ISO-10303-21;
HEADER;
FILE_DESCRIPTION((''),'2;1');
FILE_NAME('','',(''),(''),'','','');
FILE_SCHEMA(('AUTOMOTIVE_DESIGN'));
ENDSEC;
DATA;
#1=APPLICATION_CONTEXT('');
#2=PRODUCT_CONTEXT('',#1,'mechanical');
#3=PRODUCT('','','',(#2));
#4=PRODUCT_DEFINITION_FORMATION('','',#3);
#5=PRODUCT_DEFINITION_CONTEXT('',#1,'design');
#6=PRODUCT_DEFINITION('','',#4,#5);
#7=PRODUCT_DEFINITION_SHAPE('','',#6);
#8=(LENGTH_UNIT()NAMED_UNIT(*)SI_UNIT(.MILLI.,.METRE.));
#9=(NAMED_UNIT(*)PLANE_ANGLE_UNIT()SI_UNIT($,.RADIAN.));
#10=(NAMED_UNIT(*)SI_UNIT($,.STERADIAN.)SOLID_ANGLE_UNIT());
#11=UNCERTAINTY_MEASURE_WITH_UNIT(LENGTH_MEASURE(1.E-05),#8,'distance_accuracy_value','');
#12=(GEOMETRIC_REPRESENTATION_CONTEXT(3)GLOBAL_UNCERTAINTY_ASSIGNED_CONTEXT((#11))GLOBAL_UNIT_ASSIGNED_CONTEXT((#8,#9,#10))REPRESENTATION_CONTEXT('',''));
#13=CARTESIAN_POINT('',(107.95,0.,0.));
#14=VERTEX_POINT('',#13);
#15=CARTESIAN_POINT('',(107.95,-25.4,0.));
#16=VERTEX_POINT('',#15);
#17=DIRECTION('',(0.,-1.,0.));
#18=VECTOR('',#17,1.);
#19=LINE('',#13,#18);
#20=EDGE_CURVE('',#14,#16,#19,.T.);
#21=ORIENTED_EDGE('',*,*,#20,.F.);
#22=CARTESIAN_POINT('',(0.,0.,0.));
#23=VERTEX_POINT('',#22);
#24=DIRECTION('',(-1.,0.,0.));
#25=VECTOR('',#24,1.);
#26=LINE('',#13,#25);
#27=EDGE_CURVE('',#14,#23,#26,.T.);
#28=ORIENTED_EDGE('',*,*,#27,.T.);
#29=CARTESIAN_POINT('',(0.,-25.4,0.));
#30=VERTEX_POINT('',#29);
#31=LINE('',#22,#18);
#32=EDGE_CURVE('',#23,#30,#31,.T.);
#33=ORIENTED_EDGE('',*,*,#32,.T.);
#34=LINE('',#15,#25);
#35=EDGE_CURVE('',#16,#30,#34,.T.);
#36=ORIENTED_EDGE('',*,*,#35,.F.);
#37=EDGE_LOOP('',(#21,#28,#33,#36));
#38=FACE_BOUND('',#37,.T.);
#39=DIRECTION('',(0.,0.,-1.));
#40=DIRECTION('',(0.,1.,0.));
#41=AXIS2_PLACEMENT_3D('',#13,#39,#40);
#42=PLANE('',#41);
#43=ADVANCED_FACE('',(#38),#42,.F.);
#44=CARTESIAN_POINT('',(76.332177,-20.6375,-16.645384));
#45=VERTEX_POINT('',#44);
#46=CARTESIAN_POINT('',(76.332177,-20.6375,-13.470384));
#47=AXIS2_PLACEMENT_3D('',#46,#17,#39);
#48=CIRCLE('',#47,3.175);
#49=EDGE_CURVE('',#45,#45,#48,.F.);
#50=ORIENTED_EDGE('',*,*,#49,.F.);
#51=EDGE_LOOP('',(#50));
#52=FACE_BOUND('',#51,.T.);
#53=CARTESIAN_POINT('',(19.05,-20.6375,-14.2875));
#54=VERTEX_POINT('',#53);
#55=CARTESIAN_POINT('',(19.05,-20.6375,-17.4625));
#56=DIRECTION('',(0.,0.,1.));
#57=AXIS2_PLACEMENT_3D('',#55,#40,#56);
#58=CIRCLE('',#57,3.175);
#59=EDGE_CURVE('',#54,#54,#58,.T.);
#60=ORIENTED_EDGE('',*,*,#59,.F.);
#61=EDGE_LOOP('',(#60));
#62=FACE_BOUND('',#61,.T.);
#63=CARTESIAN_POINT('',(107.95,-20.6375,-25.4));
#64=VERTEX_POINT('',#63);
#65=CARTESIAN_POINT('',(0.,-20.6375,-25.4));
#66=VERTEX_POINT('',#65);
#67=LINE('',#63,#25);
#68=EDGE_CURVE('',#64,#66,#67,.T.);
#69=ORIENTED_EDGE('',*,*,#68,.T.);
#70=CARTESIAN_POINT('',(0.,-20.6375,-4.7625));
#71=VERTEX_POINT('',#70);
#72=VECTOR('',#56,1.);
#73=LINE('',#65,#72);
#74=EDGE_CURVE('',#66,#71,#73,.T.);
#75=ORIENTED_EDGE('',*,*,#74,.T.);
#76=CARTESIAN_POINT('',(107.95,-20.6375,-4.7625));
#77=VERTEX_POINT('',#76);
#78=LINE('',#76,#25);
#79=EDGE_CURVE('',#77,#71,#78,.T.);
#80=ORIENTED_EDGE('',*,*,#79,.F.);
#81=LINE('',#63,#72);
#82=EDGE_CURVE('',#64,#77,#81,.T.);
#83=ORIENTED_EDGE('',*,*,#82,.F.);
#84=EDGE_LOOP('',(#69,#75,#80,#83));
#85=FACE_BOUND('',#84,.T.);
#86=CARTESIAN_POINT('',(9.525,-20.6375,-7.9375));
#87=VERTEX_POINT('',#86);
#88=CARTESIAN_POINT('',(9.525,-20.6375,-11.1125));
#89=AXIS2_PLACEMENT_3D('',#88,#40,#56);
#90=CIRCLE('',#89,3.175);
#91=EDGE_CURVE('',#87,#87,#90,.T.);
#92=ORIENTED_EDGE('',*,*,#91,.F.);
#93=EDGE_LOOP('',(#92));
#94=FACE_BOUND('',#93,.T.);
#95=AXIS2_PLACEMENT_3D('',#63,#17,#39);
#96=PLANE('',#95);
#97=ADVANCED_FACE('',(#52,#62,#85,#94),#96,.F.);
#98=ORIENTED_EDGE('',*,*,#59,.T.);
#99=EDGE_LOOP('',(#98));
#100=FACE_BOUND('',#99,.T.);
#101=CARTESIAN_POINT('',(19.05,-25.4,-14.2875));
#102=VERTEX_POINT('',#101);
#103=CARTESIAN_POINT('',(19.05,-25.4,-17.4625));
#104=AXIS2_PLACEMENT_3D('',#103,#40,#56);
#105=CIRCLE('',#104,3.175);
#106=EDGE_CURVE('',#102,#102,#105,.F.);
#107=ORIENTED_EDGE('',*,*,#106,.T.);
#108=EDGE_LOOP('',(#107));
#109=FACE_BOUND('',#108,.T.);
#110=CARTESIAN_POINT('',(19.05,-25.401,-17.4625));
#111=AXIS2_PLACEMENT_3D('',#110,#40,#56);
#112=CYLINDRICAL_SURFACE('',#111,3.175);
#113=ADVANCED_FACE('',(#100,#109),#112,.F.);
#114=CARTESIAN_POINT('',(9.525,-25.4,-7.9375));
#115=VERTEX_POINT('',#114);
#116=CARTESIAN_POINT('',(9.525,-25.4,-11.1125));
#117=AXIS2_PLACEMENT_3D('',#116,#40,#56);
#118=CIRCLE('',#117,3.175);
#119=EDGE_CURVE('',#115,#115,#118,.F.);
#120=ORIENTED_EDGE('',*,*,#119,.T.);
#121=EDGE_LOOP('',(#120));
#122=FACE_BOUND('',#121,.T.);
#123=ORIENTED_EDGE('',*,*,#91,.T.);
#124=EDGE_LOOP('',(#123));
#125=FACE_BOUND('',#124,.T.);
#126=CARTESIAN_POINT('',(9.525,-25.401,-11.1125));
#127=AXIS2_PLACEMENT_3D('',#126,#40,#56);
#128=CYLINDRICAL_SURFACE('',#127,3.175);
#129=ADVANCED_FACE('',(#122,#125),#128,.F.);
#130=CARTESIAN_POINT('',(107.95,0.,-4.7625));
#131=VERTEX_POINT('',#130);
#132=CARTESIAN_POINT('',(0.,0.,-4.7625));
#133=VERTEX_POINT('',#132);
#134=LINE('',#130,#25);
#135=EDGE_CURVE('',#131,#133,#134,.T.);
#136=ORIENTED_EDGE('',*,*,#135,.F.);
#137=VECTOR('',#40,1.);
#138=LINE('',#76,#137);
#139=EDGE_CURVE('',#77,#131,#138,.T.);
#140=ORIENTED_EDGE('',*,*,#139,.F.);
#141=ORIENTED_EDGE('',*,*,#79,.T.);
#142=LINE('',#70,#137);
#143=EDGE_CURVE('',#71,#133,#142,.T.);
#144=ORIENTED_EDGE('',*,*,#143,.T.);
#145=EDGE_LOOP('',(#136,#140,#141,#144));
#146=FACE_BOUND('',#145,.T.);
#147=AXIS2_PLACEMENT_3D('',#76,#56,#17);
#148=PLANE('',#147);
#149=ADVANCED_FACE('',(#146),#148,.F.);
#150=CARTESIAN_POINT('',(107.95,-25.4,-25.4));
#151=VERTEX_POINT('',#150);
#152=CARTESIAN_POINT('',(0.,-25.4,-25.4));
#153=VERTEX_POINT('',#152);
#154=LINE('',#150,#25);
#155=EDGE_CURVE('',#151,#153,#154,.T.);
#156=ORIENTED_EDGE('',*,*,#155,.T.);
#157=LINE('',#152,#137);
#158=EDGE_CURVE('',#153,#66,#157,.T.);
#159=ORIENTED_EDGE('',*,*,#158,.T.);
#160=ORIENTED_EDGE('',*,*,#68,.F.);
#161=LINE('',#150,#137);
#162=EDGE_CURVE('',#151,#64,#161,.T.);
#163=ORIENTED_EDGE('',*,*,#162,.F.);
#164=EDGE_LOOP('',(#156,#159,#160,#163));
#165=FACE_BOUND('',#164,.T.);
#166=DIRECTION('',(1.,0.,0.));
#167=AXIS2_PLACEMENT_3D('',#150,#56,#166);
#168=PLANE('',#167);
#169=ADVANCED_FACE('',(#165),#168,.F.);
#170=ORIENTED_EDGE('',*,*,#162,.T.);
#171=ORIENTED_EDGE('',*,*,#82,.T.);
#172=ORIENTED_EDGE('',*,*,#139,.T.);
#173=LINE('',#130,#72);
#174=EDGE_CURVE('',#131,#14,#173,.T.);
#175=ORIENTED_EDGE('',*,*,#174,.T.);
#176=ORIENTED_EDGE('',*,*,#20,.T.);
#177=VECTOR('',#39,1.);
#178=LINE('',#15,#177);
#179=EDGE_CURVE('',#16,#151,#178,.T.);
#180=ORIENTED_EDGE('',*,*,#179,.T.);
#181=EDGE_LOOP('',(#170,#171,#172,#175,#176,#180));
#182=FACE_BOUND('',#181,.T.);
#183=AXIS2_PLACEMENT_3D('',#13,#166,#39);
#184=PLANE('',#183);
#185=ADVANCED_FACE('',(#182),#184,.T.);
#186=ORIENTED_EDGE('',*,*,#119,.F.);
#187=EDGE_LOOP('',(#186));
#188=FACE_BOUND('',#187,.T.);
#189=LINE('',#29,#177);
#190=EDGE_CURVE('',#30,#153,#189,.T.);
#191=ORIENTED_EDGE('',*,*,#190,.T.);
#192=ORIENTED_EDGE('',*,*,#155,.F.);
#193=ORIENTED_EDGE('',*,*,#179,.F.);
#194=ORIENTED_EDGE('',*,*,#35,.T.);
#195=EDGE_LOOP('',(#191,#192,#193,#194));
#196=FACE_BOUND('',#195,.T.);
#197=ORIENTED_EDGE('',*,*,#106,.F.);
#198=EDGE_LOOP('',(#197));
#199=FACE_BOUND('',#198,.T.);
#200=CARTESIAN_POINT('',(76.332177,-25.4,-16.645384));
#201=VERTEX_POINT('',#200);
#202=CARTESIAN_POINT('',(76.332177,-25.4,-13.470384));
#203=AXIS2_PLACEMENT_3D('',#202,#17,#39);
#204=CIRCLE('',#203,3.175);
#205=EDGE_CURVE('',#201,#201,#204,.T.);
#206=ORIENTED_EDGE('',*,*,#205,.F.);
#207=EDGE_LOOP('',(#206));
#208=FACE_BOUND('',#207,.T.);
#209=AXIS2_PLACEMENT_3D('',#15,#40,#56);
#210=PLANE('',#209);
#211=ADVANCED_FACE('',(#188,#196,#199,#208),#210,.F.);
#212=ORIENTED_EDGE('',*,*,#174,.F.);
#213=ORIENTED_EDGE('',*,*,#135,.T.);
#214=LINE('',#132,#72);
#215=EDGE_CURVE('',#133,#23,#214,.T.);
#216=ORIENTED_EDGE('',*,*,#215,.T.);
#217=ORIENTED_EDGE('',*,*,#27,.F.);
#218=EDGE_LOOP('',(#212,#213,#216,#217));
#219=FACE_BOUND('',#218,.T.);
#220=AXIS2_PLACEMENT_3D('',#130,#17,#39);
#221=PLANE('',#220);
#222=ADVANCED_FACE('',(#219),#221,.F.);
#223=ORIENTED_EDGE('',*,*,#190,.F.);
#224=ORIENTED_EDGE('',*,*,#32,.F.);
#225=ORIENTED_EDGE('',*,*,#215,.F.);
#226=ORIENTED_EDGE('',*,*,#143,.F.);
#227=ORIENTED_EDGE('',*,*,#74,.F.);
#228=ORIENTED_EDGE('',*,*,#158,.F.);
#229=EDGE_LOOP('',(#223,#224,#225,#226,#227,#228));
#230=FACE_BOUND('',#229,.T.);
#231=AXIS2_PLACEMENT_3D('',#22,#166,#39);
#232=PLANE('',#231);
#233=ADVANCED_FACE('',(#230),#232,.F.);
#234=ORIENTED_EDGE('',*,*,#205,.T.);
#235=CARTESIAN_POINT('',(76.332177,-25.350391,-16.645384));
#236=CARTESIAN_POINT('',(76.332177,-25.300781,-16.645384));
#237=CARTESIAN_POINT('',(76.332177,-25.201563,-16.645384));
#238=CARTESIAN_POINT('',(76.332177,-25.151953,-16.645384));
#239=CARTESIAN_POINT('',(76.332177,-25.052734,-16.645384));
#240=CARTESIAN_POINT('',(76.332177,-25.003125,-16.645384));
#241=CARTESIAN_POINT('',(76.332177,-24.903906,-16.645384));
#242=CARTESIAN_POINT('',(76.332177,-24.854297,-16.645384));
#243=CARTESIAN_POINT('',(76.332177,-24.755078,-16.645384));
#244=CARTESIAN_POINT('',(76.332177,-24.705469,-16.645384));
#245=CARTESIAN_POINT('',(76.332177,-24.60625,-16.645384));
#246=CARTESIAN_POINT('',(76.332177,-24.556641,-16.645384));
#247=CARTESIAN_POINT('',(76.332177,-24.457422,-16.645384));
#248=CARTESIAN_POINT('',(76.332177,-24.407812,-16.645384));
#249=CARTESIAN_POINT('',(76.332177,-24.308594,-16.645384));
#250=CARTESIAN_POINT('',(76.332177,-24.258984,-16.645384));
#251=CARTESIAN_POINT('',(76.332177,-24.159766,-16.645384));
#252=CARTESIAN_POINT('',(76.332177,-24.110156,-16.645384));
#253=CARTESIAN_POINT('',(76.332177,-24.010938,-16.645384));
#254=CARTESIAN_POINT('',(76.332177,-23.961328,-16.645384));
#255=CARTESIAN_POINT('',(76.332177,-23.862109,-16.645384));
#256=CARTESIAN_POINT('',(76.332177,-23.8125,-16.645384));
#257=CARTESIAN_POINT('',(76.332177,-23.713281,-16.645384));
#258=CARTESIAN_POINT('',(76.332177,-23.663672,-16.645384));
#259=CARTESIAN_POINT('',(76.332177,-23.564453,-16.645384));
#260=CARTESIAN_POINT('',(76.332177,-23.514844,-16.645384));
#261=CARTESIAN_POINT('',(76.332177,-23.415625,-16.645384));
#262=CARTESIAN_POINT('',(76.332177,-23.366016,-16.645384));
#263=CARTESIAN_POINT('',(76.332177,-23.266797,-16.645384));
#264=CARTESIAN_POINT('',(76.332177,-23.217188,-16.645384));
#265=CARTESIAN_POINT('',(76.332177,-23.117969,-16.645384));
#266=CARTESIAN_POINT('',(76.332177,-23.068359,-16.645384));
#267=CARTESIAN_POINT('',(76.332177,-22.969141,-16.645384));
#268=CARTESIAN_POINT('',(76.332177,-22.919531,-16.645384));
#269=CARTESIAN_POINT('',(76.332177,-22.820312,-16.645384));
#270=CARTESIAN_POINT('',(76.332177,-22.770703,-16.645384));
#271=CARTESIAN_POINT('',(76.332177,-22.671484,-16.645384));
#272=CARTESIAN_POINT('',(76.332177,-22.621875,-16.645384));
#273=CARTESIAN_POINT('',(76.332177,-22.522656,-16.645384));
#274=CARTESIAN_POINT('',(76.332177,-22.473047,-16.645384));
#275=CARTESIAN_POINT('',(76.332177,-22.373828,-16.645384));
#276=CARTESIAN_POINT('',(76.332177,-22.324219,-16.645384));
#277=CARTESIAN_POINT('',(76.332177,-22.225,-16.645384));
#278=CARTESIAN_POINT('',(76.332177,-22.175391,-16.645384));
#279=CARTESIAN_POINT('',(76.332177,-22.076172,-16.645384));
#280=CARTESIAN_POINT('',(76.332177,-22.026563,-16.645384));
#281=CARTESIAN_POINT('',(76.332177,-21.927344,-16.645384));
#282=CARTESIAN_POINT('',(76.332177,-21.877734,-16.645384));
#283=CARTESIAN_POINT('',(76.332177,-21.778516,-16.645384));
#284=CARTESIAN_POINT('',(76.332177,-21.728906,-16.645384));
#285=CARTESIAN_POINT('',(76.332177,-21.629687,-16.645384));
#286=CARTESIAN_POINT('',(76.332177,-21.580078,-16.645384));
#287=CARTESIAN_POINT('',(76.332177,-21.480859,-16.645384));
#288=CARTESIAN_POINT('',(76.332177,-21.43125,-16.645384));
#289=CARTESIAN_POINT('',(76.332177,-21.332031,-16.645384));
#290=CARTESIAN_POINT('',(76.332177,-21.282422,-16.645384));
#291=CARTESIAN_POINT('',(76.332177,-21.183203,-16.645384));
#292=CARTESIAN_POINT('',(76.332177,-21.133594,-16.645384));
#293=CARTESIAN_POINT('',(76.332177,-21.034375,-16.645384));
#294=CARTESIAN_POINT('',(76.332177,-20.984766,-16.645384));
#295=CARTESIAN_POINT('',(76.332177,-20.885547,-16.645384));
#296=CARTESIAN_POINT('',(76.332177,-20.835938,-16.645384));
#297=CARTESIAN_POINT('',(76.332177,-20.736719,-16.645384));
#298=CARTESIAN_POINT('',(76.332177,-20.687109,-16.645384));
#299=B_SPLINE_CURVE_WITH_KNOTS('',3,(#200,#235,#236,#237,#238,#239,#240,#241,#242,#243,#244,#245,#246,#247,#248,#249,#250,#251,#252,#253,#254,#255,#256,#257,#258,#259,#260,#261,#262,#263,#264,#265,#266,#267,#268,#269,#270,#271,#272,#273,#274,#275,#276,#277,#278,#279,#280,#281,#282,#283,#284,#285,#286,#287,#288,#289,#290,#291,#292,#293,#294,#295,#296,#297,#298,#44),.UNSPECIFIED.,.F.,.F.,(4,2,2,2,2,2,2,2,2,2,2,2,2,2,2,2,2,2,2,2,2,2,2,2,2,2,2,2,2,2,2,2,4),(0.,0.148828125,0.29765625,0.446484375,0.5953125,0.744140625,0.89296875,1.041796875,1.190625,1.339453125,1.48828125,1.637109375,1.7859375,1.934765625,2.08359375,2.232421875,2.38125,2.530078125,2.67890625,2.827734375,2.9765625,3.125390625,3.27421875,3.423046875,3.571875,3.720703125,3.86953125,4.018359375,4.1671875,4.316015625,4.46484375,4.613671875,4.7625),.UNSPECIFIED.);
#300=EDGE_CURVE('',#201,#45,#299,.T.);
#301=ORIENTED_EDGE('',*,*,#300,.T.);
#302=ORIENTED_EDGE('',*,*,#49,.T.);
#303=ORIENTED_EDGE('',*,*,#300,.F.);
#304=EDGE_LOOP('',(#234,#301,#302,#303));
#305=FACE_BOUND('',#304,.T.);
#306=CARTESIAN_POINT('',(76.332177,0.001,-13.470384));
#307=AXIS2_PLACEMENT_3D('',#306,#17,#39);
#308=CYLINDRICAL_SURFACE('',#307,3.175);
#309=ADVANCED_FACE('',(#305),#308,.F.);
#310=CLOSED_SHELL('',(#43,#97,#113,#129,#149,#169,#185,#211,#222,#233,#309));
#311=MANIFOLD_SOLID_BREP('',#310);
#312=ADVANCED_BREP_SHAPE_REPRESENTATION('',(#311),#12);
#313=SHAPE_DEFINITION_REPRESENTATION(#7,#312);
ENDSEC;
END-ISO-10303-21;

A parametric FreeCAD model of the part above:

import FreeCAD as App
import Part
import Sketcher
from FreeCAD import Vector
Q = App.Units.Quantity


def add_polygon(sketch, points):
    """Adds a closed chain of lines whose ends are joined by coincident constraints."""
    first, n = sketch.GeometryCount, len(points)
    for a, b in zip(points, points[1:] + points[:1]):
        sketch.addGeometry(Part.LineSegment(App.Vector(*a, 0), App.Vector(*b, 0)), False)
    for i in range(n):
        sketch.addConstraint(Sketcher.Constraint("Coincident", first + i, 2, first + (i + 1) % n, 1))

doc = App.newDocument("Part")
params = doc.addObject("Spreadsheet::Sheet", "Params")
for row, (alias, value) in enumerate([
    ("sketch1_width", "1 in"),
    ("sketch1_width2", "0.1875 in"),
    ("pad1_length", "4.25 in"),
    ("sketch2_diameter", "0.25 in"),
    ("sketch3_diameter", "0.25 in"),
    ("sketch4_diameter", "0.25 in"),
], start=1):
    params.set(f"A{row}", alias)
    params.set(f"B{row}", "=" + value)
    params.setAlias(f"B{row}", alias)

body = doc.addObject("PartDesign::Body", "Body")

sketch1 = body.newObject("Sketcher::SketchObject", "Sketch")
sketch1.AttachmentSupport = (doc.getObject("YZ_Plane"), [""])
sketch1.MapMode = "FlatFace"
add_polygon(sketch1, [(0, 0), (-25.4, 0), (-25.4, -25.4), (-20.6, -25.4), (-20.6, -4.8), (0, -4.8)])
sketch1.addConstraint([
    Sketcher.Constraint("Horizontal", 0),
    Sketcher.Constraint("Vertical", 1),
    Sketcher.Constraint("Horizontal", 2),
    Sketcher.Constraint("Vertical", 3),
    Sketcher.Constraint("Horizontal", 4),
    Sketcher.Constraint("Vertical", 5),
    Sketcher.Constraint("Coincident", 5, 2, -1, 1),
    Sketcher.Constraint("Equal", 0, 1),
    Sketcher.Constraint("Equal", 4, 3),
    Sketcher.Constraint("DistanceX", 0, 2, 0, 1, Q("1 in")),
    Sketcher.Constraint("DistanceX", 2, 1, 2, 2, Q("0.1875 in")),
])
sketch1.setExpression("Constraints[15]", "Params.sketch1_width")
sketch1.setExpression("Constraints[16]", "Params.sketch1_width2")
pad1 = body.newObject("PartDesign::Pad", "Pad")
pad1.Profile = sketch1
pad1.setExpression("Length", "Params.pad1_length")

sketch2 = body.newObject("Sketcher::SketchObject", "Sketch001")
sketch2.AttachmentSupport = (doc.getObject("XZ_Plane"), [""])
sketch2.MapMode = "FlatFace"
sketch2.AttachmentOffset = App.Placement(Vector(0, 0, 0.8125 * 25.4), App.Rotation())
sketch2.addGeometry(Part.Circle(Vector(9.5, -11.1, 0), Vector(0, 0, 1), 3.2), False)
sketch2.addConstraint([
    Sketcher.Constraint("Diameter", 0, Q("0.25 in")),
    Sketcher.Constraint("DistanceX", -1, 1, 0, 3, Q("0.375 in")),
    Sketcher.Constraint("DistanceY", 0, 3, -1, 1, Q("0.4375 in")),
])
sketch2.setExpression("Constraints[0]", "Params.sketch2_diameter")
pocket1 = body.newObject("PartDesign::Pocket", "Pocket")
pocket1.Profile = sketch2
pocket1.Type = "UpToFirst"
pocket1.Reversed = True

sketch3 = body.newObject("Sketcher::SketchObject", "Sketch002")
sketch3.AttachmentSupport = (doc.getObject("XZ_Plane"), [""])
sketch3.MapMode = "FlatFace"
sketch3.AttachmentOffset = App.Placement(Vector(0, 0, 0.8125 * 25.4), App.Rotation())
sketch3.addGeometry(Part.Circle(Vector(19.1, -17.5, 0), Vector(0, 0, 1), 3.2), False)
sketch3.addConstraint([
    Sketcher.Constraint("Diameter", 0, Q("0.25 in")),
    Sketcher.Constraint("DistanceX", -1, 1, 0, 3, Q("0.75 in")),
    Sketcher.Constraint("DistanceY", 0, 3, -1, 1, Q("0.6875 in")),
])
sketch3.setExpression("Constraints[0]", "Params.sketch3_diameter")
pocket2 = body.newObject("PartDesign::Pocket", "Pocket001")
pocket2.Profile = sketch3
pocket2.Type = "UpToFirst"
pocket2.Reversed = True

sketch4 = body.newObject("Sketcher::SketchObject", "Sketch003")
sketch4.AttachmentSupport = (doc.getObject("XZ_Plane"), [""])
sketch4.MapMode = "FlatFace"
sketch4.AttachmentOffset = App.Placement(Vector(0, 0, 1 * 25.4), App.Rotation())
sketch4.addGeometry(Part.Circle(Vector(76.3, -13.5, 0), Vector(0, 0, 1), 3.2), False)
sketch4.addConstraint([
    Sketcher.Constraint("Diameter", 0, Q("0.25 in")),
    Sketcher.Constraint("DistanceX", -1, 1, 0, 3, 76.332177),
    Sketcher.Constraint("DistanceY", 0, 3, -1, 1, 13.470384),
])
sketch4.setExpression("Constraints[0]", "Params.sketch4_diameter")
pocket3 = body.newObject("PartDesign::Pocket", "Pocket002")
pocket3.Profile = sketch4
pocket3.Type = "UpToFirst"

doc.recompute()
